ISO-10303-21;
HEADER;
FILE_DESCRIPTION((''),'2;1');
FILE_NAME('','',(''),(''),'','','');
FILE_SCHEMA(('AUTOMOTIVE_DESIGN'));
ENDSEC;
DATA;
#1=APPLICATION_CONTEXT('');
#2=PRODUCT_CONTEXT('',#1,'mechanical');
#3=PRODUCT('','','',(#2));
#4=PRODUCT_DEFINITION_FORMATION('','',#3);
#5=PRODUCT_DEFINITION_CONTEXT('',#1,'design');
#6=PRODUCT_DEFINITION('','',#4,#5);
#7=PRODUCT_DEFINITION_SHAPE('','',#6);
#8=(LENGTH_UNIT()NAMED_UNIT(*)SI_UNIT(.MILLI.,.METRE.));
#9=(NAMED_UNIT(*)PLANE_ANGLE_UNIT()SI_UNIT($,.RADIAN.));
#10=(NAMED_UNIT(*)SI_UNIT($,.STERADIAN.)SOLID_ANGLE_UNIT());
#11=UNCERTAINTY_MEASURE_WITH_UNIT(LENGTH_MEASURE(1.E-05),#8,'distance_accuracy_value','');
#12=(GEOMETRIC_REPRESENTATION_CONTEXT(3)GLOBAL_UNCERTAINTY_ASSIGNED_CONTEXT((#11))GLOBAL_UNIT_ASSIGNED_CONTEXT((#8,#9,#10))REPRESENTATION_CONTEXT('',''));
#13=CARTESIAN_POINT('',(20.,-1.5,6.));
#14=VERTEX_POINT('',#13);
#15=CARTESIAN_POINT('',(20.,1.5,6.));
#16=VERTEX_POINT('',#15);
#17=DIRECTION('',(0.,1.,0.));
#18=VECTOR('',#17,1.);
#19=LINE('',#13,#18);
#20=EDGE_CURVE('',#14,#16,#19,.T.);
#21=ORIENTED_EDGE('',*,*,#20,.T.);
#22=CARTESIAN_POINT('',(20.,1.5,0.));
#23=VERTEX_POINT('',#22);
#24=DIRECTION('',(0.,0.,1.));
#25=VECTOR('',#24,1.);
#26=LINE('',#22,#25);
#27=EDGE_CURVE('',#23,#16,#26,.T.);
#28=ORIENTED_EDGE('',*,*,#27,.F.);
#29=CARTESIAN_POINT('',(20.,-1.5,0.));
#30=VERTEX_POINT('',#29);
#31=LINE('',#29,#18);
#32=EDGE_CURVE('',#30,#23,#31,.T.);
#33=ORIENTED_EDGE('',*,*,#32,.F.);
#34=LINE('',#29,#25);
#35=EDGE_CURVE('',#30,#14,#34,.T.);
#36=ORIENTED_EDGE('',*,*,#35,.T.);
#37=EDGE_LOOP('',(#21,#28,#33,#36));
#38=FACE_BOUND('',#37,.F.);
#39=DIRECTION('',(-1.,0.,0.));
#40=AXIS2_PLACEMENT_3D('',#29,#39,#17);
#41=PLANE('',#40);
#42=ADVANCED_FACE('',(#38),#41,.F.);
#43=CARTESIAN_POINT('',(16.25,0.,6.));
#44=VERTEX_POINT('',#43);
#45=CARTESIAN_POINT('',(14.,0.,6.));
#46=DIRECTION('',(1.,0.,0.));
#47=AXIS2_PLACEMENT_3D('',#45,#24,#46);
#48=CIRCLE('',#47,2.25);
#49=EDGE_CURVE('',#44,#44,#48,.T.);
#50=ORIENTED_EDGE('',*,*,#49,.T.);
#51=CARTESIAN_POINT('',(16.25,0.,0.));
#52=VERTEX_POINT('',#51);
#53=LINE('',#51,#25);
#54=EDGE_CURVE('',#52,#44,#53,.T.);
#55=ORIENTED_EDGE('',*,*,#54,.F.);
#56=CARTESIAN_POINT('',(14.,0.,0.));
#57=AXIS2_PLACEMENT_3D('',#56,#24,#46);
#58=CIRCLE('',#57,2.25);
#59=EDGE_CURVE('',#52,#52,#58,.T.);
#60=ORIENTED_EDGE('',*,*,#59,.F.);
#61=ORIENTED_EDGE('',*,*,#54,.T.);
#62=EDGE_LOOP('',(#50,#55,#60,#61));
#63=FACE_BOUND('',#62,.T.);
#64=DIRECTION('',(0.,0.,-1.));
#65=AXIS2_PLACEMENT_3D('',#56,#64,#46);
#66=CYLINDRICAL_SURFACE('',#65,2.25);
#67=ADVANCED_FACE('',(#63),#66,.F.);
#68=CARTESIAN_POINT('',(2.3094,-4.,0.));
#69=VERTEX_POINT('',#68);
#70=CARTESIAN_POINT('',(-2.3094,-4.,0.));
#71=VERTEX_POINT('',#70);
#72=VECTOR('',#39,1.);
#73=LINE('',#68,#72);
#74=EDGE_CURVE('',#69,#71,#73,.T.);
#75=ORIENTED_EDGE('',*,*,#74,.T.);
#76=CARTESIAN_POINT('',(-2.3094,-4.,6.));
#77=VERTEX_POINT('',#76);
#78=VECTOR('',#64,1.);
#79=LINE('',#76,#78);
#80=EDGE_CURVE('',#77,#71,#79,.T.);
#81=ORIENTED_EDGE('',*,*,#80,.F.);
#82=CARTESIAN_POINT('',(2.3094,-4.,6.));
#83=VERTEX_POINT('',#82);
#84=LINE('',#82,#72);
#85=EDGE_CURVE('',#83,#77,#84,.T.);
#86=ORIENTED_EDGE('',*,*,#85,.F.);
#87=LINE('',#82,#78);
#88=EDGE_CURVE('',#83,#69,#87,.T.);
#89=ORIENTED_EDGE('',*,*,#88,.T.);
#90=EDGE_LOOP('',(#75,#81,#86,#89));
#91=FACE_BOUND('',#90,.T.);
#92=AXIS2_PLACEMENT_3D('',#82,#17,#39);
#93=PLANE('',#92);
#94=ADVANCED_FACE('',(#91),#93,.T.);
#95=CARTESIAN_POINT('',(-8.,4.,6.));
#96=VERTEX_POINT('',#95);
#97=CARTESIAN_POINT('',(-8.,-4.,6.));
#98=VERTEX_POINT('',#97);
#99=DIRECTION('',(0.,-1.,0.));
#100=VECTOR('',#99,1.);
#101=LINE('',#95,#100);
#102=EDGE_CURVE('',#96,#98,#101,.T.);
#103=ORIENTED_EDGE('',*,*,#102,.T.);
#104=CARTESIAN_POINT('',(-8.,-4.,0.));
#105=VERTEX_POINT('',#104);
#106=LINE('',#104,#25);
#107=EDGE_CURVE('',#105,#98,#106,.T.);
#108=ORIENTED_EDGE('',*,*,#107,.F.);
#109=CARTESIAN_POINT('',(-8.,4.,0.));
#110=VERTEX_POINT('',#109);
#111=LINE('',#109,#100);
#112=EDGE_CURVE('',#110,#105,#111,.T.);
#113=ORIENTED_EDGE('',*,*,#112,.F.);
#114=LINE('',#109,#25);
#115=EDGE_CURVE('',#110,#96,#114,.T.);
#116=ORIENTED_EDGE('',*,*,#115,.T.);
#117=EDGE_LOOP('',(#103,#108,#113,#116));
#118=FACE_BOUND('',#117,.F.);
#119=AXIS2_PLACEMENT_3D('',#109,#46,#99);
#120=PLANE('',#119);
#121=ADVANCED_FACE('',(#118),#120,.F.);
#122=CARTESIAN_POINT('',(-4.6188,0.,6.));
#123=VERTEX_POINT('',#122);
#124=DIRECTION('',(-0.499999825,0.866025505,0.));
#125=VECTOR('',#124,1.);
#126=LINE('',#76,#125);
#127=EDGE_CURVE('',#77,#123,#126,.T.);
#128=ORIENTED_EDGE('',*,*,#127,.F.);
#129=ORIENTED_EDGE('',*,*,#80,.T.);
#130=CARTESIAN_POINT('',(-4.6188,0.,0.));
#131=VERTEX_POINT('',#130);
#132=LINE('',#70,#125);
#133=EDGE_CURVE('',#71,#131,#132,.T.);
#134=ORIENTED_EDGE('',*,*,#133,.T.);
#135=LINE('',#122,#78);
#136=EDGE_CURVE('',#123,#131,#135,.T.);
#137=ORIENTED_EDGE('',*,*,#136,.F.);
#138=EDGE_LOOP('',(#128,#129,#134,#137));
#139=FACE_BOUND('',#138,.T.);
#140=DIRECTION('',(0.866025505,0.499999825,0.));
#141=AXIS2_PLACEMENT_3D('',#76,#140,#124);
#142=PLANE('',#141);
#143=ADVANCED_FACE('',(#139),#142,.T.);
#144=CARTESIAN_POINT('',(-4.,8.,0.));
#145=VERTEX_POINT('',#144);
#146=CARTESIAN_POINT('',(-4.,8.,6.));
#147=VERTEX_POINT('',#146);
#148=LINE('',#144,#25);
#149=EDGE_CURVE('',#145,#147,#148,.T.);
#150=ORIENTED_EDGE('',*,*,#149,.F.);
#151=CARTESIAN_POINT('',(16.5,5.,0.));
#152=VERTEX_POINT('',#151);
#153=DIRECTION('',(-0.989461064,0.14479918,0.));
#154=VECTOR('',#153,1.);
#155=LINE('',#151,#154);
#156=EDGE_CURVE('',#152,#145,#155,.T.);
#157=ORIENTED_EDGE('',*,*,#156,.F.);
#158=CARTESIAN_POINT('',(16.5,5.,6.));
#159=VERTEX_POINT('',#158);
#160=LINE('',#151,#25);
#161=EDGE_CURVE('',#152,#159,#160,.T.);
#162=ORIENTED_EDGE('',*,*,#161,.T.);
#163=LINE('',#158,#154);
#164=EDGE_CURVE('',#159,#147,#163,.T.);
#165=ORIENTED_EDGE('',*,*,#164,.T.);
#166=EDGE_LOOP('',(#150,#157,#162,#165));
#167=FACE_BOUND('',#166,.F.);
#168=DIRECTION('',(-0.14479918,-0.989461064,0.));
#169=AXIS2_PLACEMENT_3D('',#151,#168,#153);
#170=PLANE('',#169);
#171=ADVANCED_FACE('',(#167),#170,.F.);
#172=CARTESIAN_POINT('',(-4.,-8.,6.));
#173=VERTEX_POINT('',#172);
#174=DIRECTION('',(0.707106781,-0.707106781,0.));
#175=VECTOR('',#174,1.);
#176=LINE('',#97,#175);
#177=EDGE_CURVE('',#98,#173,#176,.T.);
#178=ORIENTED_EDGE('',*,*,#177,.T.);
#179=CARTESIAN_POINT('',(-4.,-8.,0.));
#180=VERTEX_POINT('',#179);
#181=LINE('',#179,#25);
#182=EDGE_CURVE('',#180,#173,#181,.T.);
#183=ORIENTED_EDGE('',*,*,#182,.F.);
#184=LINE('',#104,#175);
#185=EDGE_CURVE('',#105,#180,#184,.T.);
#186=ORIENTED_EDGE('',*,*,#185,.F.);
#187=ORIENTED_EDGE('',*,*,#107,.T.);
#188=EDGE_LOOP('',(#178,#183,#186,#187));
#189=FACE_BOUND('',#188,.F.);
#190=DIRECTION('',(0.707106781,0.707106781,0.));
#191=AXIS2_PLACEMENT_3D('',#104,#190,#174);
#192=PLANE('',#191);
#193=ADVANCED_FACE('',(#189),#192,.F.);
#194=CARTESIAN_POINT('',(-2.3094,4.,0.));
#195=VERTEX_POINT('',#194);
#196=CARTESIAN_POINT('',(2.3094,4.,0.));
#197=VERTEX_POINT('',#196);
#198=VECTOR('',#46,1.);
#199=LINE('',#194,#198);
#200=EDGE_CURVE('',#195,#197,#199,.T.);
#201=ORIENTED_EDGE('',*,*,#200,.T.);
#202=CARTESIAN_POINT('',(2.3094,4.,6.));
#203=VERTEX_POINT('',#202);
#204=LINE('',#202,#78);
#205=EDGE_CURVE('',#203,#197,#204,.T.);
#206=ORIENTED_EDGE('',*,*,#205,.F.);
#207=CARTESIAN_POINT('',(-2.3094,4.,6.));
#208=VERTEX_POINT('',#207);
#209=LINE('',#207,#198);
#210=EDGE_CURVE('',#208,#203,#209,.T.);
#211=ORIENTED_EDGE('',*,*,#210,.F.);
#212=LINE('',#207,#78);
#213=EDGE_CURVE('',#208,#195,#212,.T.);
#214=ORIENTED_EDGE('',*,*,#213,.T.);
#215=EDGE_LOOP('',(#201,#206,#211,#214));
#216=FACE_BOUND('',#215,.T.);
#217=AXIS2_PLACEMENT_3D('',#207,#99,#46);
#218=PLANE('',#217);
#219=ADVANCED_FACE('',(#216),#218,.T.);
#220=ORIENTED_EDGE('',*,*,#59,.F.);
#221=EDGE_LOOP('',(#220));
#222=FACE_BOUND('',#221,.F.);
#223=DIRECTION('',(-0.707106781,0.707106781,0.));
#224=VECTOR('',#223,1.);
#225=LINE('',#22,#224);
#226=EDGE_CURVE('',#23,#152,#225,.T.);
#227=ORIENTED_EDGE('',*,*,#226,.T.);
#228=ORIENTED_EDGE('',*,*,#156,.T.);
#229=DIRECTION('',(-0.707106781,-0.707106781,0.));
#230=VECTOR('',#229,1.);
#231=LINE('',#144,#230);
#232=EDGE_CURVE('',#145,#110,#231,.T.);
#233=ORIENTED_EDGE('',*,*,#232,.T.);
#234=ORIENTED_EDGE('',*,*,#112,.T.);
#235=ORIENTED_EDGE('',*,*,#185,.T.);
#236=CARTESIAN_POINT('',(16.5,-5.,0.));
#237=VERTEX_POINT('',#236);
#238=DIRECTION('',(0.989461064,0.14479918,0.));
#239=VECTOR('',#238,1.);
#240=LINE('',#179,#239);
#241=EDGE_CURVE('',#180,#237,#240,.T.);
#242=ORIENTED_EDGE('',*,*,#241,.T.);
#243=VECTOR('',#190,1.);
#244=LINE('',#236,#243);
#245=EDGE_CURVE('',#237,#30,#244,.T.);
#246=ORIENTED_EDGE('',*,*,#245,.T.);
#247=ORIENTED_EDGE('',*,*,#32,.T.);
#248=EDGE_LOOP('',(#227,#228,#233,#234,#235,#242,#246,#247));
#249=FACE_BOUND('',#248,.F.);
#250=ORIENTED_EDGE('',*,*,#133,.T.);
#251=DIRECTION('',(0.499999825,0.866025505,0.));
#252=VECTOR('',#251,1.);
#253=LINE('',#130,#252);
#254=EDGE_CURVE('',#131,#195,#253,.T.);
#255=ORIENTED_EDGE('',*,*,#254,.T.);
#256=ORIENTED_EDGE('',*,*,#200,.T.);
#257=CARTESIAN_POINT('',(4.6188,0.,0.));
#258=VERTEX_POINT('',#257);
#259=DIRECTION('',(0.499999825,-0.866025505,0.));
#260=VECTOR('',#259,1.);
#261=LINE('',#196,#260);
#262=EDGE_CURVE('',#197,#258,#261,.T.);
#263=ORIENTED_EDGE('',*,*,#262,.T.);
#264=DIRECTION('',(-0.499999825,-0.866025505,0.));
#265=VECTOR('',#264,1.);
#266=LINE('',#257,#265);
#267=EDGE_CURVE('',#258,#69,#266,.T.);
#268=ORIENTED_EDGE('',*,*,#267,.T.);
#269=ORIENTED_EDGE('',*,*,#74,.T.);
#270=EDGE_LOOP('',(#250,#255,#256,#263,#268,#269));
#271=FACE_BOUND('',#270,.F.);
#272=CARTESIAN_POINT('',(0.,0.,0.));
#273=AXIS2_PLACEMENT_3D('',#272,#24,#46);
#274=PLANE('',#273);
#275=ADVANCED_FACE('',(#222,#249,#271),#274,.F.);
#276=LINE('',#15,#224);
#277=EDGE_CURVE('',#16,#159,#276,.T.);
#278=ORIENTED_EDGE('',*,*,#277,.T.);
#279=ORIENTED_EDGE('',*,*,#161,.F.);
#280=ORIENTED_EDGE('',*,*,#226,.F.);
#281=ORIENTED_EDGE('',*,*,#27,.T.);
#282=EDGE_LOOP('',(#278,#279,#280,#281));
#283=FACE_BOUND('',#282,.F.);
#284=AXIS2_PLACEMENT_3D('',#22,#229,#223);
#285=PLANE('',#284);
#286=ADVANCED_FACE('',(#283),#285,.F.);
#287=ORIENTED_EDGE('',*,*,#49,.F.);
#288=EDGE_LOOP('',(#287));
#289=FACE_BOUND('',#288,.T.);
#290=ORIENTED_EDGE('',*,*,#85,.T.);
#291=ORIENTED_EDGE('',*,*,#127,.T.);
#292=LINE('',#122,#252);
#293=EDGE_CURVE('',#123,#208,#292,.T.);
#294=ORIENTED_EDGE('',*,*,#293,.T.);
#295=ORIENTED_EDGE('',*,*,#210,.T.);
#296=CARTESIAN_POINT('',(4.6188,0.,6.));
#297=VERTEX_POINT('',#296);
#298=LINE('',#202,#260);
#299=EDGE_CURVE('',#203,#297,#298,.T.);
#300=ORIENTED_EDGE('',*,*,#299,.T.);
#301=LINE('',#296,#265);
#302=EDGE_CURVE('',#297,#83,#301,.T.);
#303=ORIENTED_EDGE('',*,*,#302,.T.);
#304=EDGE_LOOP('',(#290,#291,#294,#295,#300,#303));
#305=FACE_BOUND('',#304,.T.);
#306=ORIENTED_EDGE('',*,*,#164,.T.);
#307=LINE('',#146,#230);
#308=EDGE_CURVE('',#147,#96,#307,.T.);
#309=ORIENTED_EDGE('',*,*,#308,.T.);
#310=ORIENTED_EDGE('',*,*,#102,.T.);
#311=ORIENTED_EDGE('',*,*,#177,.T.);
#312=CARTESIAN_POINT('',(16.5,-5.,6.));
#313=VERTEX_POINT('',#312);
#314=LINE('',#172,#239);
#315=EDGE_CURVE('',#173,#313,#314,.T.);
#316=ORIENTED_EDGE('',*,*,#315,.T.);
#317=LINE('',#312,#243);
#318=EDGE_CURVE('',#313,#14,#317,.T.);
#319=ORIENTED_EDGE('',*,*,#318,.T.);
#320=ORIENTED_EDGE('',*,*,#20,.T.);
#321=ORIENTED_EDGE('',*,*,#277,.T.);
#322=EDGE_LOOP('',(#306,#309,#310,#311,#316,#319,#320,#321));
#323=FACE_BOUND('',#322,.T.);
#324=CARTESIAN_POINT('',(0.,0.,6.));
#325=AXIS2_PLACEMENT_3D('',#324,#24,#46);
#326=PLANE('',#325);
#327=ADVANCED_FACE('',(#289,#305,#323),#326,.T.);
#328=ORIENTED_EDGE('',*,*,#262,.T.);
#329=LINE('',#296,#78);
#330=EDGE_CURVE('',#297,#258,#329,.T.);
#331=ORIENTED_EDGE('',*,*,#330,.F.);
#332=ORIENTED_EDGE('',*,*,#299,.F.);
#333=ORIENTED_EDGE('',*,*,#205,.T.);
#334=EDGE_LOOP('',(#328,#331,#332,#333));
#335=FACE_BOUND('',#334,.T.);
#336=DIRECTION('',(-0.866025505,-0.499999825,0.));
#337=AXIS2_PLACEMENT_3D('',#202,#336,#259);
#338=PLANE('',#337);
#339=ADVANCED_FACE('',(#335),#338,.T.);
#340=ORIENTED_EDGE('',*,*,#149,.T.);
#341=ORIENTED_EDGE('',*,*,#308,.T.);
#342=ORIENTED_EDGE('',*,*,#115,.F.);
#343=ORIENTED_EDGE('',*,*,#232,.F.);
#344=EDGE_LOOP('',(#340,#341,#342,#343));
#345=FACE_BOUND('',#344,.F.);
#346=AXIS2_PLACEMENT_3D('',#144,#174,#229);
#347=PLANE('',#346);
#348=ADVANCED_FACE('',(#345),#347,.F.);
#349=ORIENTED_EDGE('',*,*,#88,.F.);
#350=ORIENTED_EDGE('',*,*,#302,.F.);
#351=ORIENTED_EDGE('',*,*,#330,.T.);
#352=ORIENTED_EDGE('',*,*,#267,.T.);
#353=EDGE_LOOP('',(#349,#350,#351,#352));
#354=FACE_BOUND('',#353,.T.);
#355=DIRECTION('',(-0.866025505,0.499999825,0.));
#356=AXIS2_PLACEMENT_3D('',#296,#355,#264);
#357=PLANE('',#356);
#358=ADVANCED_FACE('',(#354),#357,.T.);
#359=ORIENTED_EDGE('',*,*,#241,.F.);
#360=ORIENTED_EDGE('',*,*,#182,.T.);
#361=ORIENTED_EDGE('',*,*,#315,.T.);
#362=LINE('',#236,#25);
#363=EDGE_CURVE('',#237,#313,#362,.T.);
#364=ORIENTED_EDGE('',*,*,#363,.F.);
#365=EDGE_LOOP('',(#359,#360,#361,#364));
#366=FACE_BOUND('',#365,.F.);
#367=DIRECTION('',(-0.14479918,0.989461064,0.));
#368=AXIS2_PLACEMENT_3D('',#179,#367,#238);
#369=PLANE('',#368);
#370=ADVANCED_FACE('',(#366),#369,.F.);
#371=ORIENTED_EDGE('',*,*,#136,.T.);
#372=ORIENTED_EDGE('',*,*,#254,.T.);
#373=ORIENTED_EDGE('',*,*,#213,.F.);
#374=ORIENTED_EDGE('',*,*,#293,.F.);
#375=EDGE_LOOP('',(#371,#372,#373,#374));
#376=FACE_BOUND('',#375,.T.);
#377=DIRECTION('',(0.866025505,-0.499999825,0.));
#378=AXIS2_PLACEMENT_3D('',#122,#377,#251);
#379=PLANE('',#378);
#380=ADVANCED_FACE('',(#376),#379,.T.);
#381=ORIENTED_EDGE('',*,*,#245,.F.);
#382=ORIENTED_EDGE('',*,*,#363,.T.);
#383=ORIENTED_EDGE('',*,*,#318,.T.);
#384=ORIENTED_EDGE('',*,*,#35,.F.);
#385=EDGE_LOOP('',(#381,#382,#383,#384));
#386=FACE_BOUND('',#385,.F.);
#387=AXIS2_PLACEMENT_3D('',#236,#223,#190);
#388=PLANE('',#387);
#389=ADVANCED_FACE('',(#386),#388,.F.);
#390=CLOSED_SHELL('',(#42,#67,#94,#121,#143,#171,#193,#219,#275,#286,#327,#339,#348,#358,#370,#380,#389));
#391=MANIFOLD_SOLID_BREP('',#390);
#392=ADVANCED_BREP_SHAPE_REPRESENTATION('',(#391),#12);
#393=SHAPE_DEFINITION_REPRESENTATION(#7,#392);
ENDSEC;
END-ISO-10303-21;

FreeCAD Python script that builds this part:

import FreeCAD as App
import Part
import Sketcher
from FreeCAD import Vector
Q = App.Units.Quantity

doc = App.newDocument("Part")
body = doc.addObject("PartDesign::Body", "Body")

# Sketch on XY plane
sketch1 = body.newObject("Sketcher::SketchObject", "Sketch")
sketch1.AttachmentSupport = (doc.getObject("XY_Plane"), [""])
sketch1.MapMode = "FlatFace"
sketch1.addGeometry([
    Part.LineSegment(Vector(-8, -4, 0), Vector(-4, -8, 0)),  # 0
    Part.LineSegment(Vector(-4, -8, 0), Vector(16.5, -5, 0)),  # 1
    Part.LineSegment(Vector(16.5, -5, 0), Vector(20, -1.5, 0)),  # 2
    Part.LineSegment(Vector(20, -1.5, 0), Vector(20, 1.5, 0)),  # 3
    Part.LineSegment(Vector(20, 1.5, 0), Vector(16.5, 5, 0)),  # 4
    Part.LineSegment(Vector(16.5, 5, 0), Vector(-4, 8, 0)),  # 5
    Part.LineSegment(Vector(-4, 8, 0), Vector(-8, 4, 0)),  # 6
    Part.LineSegment(Vector(-8, 4, 0), Vector(-8, -4, 0)),  # 7
    Part.Circle(Vector(0, 0, 0), Vector(0, 0, 1), 2.75),  # 8
    Part.Circle(Vector(14, 0, 0), Vector(0, 0, 1), 2.25),  # 9
], False)
sketch1.addConstraint([
    Sketcher.Constraint("Coincident", 0, 2, 1, 1),
    Sketcher.Constraint("Coincident", 1, 2, 2, 1),
    Sketcher.Constraint("Coincident", 2, 2, 3, 1),
    Sketcher.Constraint("Coincident", 3, 2, 4, 1),
    Sketcher.Constraint("Coincident", 4, 2, 5, 1),
    Sketcher.Constraint("Coincident", 5, 2, 6, 1),
    Sketcher.Constraint("Coincident", 6, 2, 7, 1),
    Sketcher.Constraint("Coincident", 7, 2, 0, 1),
    Sketcher.Constraint("Vertical", 3),
    Sketcher.Constraint("Vertical", 7),
    Sketcher.Constraint("Coincident", 8, 3, -1, 1),
    Sketcher.Constraint("Symmetric", 1, 2, 4, 2, -1),
    Sketcher.Constraint("Symmetric", 0, 2, 5, 2, -1),
    Sketcher.Constraint("PointOnObject", 9, 3, -1),
    Sketcher.Constraint("Perpendicular", 0, 2),
    Sketcher.Constraint("Perpendicular", 2, 4),
    Sketcher.Constraint("Perpendicular", 4, 6),
    Sketcher.Constraint("Equal", 2, 4),
    Sketcher.Constraint("Diameter", 8, Q("5.5 mm")),
    Sketcher.Constraint("Diameter", 9, Q("4.5 mm")),
    Sketcher.Constraint("DistanceY", 3, 1, 3, 2, Q("3 mm")),
    Sketcher.Constraint("DistanceY", 7, 2, 7, 1, Q("8 mm")),
    Sketcher.Constraint("DistanceX", -1, 1, 9, 3, Q("14 mm")),
    Sketcher.Constraint("DistanceX", 0, 2, -1, 1, Q("4 mm")),
    Sketcher.Constraint("DistanceY", 0, 2, -1, 1, Q("8 mm")),
    Sketcher.Constraint("DistanceY", 0, 2, 1, 2, Q("3 mm")),
    Sketcher.Constraint("DistanceX", 9, 3, 2, 2, Q("6 mm")),
])
pad1 = body.newObject("PartDesign::Pad", "Pad")
pad1.Profile = sketch1
pad1.Length = 6

# Sketch on XY plane
sketch2 = body.newObject("Sketcher::SketchObject", "Sketch001")
sketch2.AttachmentSupport = (doc.getObject("XY_Plane"), [""])
sketch2.MapMode = "FlatFace"
sketch2.AttachmentOffset = App.Placement(Vector(0, 0, 6), App.Rotation())
sketch2.addGeometry([
    Part.LineSegment(Vector(2.3094, -4, 0), Vector(4.6188, 0, 0)),  # 0
    Part.LineSegment(Vector(4.6188, 0, 0), Vector(2.3094, 4, 0)),  # 1
    Part.LineSegment(Vector(2.3094, 4, 0), Vector(-2.3094, 4, 0)),  # 2
    Part.LineSegment(Vector(-2.3094, 4, 0), Vector(-4.6188, 0, 0)),  # 3
    Part.LineSegment(Vector(-4.6188, 0, 0), Vector(-2.3094, -4, 0)),  # 4
    Part.LineSegment(Vector(-2.3094, -4, 0), Vector(2.3094, -4, 0)),  # 5
    Part.Circle(Vector(0, 0, 0), Vector(0, 0, 1), 2.75),  # 6
], False)
sketch2.addConstraint([
    Sketcher.Constraint("Coincident", 0, 2, 1, 1),
    Sketcher.Constraint("Coincident", 1, 2, 2, 1),
    Sketcher.Constraint("Coincident", 2, 2, 3, 1),
    Sketcher.Constraint("Coincident", 3, 2, 4, 1),
    Sketcher.Constraint("Coincident", 4, 2, 5, 1),
    Sketcher.Constraint("Coincident", 5, 2, 0, 1),
    Sketcher.Constraint("Horizontal", 2),
    Sketcher.Constraint("Horizontal", 5),
    Sketcher.Constraint("Coincident", 6, 3, -1, 1),
    Sketcher.Constraint("Symmetric", 0, 2, 3, 2, -1, 1),
    Sketcher.Constraint("Symmetric", 1, 2, 4, 2, -1, 1),
    Sketcher.Constraint("PointOnObject", 0, 2, -1),
    Sketcher.Constraint("Parallel", 0, 3),
    Sketcher.Constraint("Vertical", 2, 2, 4, 2),
    Sketcher.Constraint("DistanceY", 4, 2, 2, 2, Q("8 mm")),
    Sketcher.Constraint("Diameter", 6, Q("5.5 mm")),
    Sketcher.Constraint("Angle", 0, Q("60 deg")),
    Sketcher.Constraint("DistanceX", 2, 2, 2, 1, Q("4.6188 mm")),
])
pocket1 = body.newObject("PartDesign::Pocket", "Pocket")
pocket1.Profile = sketch2
pocket1.Length = 6

doc.recompute()
